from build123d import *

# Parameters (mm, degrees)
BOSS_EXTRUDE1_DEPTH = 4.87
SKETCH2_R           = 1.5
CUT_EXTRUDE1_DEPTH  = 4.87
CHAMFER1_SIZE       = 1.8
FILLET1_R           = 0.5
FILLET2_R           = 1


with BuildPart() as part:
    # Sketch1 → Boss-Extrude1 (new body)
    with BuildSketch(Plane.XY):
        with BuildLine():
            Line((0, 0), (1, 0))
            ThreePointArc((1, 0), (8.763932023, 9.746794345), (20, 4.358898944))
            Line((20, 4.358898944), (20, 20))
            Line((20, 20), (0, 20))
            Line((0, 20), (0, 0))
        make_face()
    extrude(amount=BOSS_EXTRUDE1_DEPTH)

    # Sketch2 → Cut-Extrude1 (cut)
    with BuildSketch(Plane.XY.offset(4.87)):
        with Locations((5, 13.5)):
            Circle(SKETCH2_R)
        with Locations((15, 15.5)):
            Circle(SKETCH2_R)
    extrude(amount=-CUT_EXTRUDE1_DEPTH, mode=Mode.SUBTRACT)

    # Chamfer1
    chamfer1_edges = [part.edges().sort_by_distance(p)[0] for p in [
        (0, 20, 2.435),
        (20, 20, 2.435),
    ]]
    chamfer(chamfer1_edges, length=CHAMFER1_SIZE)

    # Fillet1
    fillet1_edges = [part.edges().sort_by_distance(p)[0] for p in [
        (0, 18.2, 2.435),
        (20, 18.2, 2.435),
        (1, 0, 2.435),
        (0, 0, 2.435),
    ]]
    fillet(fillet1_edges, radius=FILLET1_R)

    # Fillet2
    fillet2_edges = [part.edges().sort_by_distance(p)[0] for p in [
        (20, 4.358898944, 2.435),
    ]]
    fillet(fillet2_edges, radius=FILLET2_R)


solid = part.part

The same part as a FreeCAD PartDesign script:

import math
import FreeCAD as App
import Part
import Sketcher
from FreeCAD import Vector
Q = App.Units.Quantity


def edges_at(feature, points):
    """Names of the edges that pass closest to the given points."""
    edges = feature.Shape.Edges
    near = lambda p: min(range(len(edges)), key=lambda i: edges[i].distToShape(Part.Vertex(*p))[0])
    return sorted({f"Edge{near(p) + 1}" for p in points})

doc = App.newDocument("Part")
body = doc.addObject("PartDesign::Body", "Body")

sketch1 = doc.addObject("Sketcher::SketchObject", "Sketch")
body.addObject(sketch1)
sketch1.AttachmentSupport = (doc.XY_Plane, [""])
sketch1.MapMode = "FlatFace"
sketch1.addGeometry([
    Part.LineSegment(Vector(0, 0, 0), Vector(1, 0, 0)),
    Part.ArcOfCircle(Part.Circle(Vector(11, 0, 0), Vector(0, 0, 1), 10), math.radians(26), math.radians(180)),
    Part.LineSegment(Vector(20, 4.4, 0), Vector(20, 20, 0)),
    Part.LineSegment(Vector(20, 20, 0), Vector(0, 20, 0)),
    Part.LineSegment(Vector(0, 20, 0), Vector(0, 0, 0)),
], False)
sketch1.addConstraint([
    Sketcher.Constraint("Coincident", 0, 2, 1, 2),
    Sketcher.Constraint("Coincident", 1, 1, 2, 1),
    Sketcher.Constraint("Coincident", 2, 2, 3, 1),
    Sketcher.Constraint("Coincident", 3, 2, 4, 1),
    Sketcher.Constraint("Coincident", 4, 2, 0, 1),
    Sketcher.Constraint("Horizontal", 0),
    Sketcher.Constraint("Vertical", 2),
    Sketcher.Constraint("Horizontal", 3),
    Sketcher.Constraint("Vertical", 4),
    Sketcher.Constraint("Coincident", 4, 2, -1, 1),
    Sketcher.Constraint("PointOnObject", 1, 3, -1),
    Sketcher.Constraint("Equal", 3, 4),
    Sketcher.Constraint("Radius", 1, Q("10 mm")),
    Sketcher.Constraint("DistanceX", 0, 1, 0, 2, Q("1 mm")),
    Sketcher.Constraint("DistanceX", 3, 2, 3, 1, Q("20 mm")),
])
pad1 = doc.addObject("PartDesign::Pad", "Pad")
body.addObject(pad1)
pad1.Profile = sketch1
pad1.Length = 4.87

sketch2 = doc.addObject("Sketcher::SketchObject", "Sketch001")
body.addObject(sketch2)
sketch2.AttachmentSupport = (doc.XY_Plane, [""])
sketch2.MapMode = "FlatFace"
sketch2.AttachmentOffset = App.Placement(Vector(0, 0, 4.87), App.Rotation())
sketch2.addGeometry([
    Part.Circle(Vector(5, 13.5, 0), Vector(0, 0, 1), 1.5),
    Part.Circle(Vector(15, 15.5, 0), Vector(0, 0, 1), 1.5),
], False)
sketch2.addConstraint([
    Sketcher.Constraint("Equal", 0, 1),
    Sketcher.Constraint("Diameter", 0, Q("3 mm")),
    Sketcher.Constraint("DistanceX", -1, 1, 0, 3, Q("5 mm")),
    Sketcher.Constraint("DistanceX", -1, 1, 1, 3, Q("15 mm")),
    Sketcher.Constraint("DistanceY", 0, 3, 1, 3, Q("2 mm")),
    Sketcher.Constraint("DistanceY", -1, 1, 0, 3, Q("13.5 mm")),
])
pocket1 = doc.addObject("PartDesign::Pocket", "Pocket")
body.addObject(pocket1)
pocket1.Profile = sketch2
pocket1.Length = 4.87
doc.recompute()

chamfer = doc.addObject("PartDesign::Chamfer", "Chamfer")
body.addObject(chamfer)
chamfer.Base = (pocket1, edges_at(pocket1, [(0, 20, 2.435), (20, 20, 2.435)]))
chamfer.Size = 1.8
doc.recompute()

fillet = doc.addObject("PartDesign::Fillet", "Fillet")
body.addObject(fillet)
fillet.Base = (chamfer, edges_at(chamfer, [
    (0, 18.2, 2.435),
    (20, 18.2, 2.435),
    (1, 0, 2.435),
    (0, 0, 2.435),
]))
fillet.Radius = 0.5
doc.recompute()

fillet2 = doc.addObject("PartDesign::Fillet", "Fillet001")
body.addObject(fillet2)
fillet2.Base = (fillet, edges_at(fillet, [(20, 4.359, 2.435)]))
fillet2.Radius = 1

doc.recompute()
